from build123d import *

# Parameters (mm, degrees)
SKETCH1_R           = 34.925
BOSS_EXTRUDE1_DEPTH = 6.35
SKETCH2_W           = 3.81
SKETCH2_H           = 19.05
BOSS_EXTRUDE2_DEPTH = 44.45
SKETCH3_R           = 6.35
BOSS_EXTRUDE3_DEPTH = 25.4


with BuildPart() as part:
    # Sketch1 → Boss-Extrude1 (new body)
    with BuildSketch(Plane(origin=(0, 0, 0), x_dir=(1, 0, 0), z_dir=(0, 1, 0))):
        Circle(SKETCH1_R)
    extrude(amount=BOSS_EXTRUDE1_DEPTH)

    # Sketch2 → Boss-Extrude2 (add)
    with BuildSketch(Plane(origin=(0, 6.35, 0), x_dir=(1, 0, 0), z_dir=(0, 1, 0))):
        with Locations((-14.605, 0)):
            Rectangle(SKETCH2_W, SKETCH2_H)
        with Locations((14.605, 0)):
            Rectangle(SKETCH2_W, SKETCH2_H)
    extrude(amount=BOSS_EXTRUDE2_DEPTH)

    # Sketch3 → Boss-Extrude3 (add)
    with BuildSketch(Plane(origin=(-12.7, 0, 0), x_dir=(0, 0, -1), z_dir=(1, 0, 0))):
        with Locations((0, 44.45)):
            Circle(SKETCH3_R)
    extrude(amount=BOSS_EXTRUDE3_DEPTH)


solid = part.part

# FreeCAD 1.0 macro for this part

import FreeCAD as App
import Part
import Sketcher

V = App.Vector
Q = App.Units.Quantity


def add_polygon(sketch, points):
    """Adds a closed chain of lines whose ends are joined by coincident constraints."""
    first, n = sketch.GeometryCount, len(points)
    for a, b in zip(points, points[1:] + points[:1]):
        sketch.addGeometry(Part.LineSegment(App.Vector(*a, 0), App.Vector(*b, 0)), False)
    for i in range(n):
        sketch.addConstraint(Sketcher.Constraint("Coincident", first + i, 2, first + (i + 1) % n, 1))

doc = App.newDocument("Part")
params = doc.addObject("Spreadsheet::Sheet", "Params")
for row, (alias, value) in enumerate([
    ("sketch1_diameter", "2.75 in"),
    ("pad1_length", "0.25 in"),
    ("sketch2_width", "0.15 in"),
    ("sketch2_height", "0.75 in"),
    ("pad2_length", "1.75 in"),
    ("sketch3_diameter", "0.5 in"),
    ("pad3_length", "1 in"),
], start=1):
    params.set(f"A{row}", alias)
    params.set(f"B{row}", "=" + value)
    params.setAlias(f"B{row}", alias)

body = doc.addObject("PartDesign::Body", "Body")

sketch1 = body.newObject("Sketcher::SketchObject", "Sketch")
sketch1.AttachmentSupport = (doc.getObject("XZ_Plane"), [""])
sketch1.MapMode = "FlatFace"
sketch1.addGeometry(Part.Circle(V(0, 0, 0), V(0, 0, 1), 35), False)
sketch1.addConstraint([
    Sketcher.Constraint("Coincident", 0, 3, -1, 1),
    Sketcher.Constraint("Diameter", 0, Q("2.75 in")),
])
sketch1.setExpression("Constraints[1]", "Params.sketch1_diameter")
pad1 = body.newObject("PartDesign::Pad", "Pad")
pad1.Profile = sketch1
pad1.setExpression("Length", "Params.pad1_length")
pad1.Reversed = True

sketch2 = body.newObject("Sketcher::SketchObject", "Sketch001")
sketch2.AttachmentSupport = (doc.getObject("XZ_Plane"), [""])
sketch2.MapMode = "FlatFace"
sketch2.AttachmentOffset = App.Placement(V(0, 0, -0.25 * 25.4), App.Rotation())
add_polygon(sketch2, [(-16.5, -9.5), (-16.5, 9.5), (-12.7, 9.5), (-12.7, -9.5)])
add_polygon(sketch2, [(12.7, -9.5), (12.7, 9.5), (16.5, 9.5), (16.5, -9.5)])
sketch2.addConstraint([
    Sketcher.Constraint("Vertical", 0),
    Sketcher.Constraint("Horizontal", 1),
    Sketcher.Constraint("Vertical", 2),
    Sketcher.Constraint("Horizontal", 3),
    Sketcher.Constraint("Vertical", 4),
    Sketcher.Constraint("Horizontal", 5),
    Sketcher.Constraint("Vertical", 6),
    Sketcher.Constraint("Horizontal", 7),
    Sketcher.Constraint("Symmetric", 2, 2, 4, 2, -1, 1),
    Sketcher.Constraint("Symmetric", 0, 2, 6, 2, -1, 1),
    Sketcher.Constraint("Horizontal", 1, 2, 4, 2),
    Sketcher.Constraint("DistanceX", 1, 2, 4, 2, Q("1 in")),
    Sketcher.Constraint("DistanceX", 1, 1, 1, 2, Q("0.15 in")),
    Sketcher.Constraint("DistanceY", 0, 1, 0, 2, Q("0.75 in")),
])
sketch2.setExpression("Constraints[20]", "Params.sketch2_width")
sketch2.setExpression("Constraints[21]", "Params.sketch2_height")
pad2 = body.newObject("PartDesign::Pad", "Pad001")
pad2.Profile = sketch2
pad2.setExpression("Length", "Params.pad2_length")
pad2.Reversed = True

sketch3 = body.newObject("Sketcher::SketchObject", "Sketch002")
sketch3.AttachmentSupport = (doc.getObject("YZ_Plane"), [""])
sketch3.MapMode = "FlatFace"
sketch3.AttachmentOffset = App.Placement(V(0, 0, -0.5 * 25.4), App.Rotation())
sketch3.addGeometry(Part.Circle(V(44, 0, 0), V(0, 0, 1), 6), False)
sketch3.addConstraint([
    Sketcher.Constraint("PointOnObject", 0, 3, -1),
    Sketcher.Constraint("Diameter", 0, Q("0.5 in")),
    Sketcher.Constraint("DistanceX", -1, 1, 0, 3, Q("1.75 in")),
])
sketch3.setExpression("Constraints[1]", "Params.sketch3_diameter")
pad3 = body.newObject("PartDesign::Pad", "Pad002")
pad3.Profile = sketch3
pad3.setExpression("Length", "Params.pad3_length")

doc.recompute()
